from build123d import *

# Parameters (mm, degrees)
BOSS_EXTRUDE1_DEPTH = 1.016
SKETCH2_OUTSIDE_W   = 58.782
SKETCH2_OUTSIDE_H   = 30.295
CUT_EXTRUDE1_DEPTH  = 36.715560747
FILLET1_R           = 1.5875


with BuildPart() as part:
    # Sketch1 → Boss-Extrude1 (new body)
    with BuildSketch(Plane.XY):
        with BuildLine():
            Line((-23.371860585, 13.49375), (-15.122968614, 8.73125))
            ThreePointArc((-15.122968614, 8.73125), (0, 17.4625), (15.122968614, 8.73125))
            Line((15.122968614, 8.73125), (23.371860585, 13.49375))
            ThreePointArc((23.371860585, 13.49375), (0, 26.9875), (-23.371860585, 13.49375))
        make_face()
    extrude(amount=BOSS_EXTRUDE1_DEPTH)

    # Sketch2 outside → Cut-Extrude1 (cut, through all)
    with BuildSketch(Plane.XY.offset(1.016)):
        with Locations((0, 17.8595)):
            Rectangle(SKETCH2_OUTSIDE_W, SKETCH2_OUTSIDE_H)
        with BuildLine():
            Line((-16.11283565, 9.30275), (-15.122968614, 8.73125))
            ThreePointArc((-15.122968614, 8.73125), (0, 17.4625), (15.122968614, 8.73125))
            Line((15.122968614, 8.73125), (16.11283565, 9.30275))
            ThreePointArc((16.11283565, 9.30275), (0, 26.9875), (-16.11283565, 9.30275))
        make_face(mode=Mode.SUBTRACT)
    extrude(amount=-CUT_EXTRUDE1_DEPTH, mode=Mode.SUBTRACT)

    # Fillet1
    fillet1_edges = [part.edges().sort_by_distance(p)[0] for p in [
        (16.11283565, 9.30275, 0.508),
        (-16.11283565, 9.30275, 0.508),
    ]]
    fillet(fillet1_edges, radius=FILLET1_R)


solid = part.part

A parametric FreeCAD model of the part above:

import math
import FreeCAD as App
import Part
import Sketcher

V = App.Vector
Q = App.Units.Quantity


def edges_at(feature, points):
    """Names of the edges that pass closest to the given points."""
    edges = feature.Shape.Edges
    near = lambda p: min(range(len(edges)), key=lambda i: edges[i].distToShape(Part.Vertex(*p))[0])
    return sorted({f"Edge{near(p) + 1}" for p in points})

doc = App.newDocument("Part")
params = doc.addObject("Spreadsheet::Sheet", "Params")
for row, (alias, value) in enumerate([
    ("sketch1_radius", "0.6875 in"),
    ("sketch1_radius2", "1.0625 in"),
    ("pad1_length", "0.04 in"),
    ("sketch2_radius", "0.6875 in"),
    ("sketch2_length", "0.045 in"),
    ("fillet_radius", "0.0625 in"),
], start=1):
    params.set(f"A{row}", alias)
    params.set(f"B{row}", "=" + value)
    params.setAlias(f"B{row}", alias)

body = doc.addObject("PartDesign::Body", "Body")

sketch1 = doc.addObject("Sketcher::SketchObject", "Sketch")
body.addObject(sketch1)
sketch1.AttachmentSupport = (doc.XY_Plane, [""])
sketch1.MapMode = "FlatFace"
sketch1.addGeometry([
    Part.LineSegment(V(-23, 13, 0), V(-15, 9, 0)),
    Part.ArcOfCircle(Part.Circle(V(0, 0, 0), V(0, 0, 1), 17), math.radians(30), math.radians(150)),
    Part.LineSegment(V(15, 9, 0), V(23, 13, 0)),
    Part.ArcOfCircle(Part.Circle(V(0, 0, 0), V(0, 0, 1), 27), math.radians(30), math.radians(150)),
], False)
sketch1.addConstraint([
    Sketcher.Constraint("Coincident", 0, 2, 1, 2),
    Sketcher.Constraint("Coincident", 1, 1, 2, 1),
    Sketcher.Constraint("Coincident", 2, 2, 3, 1),
    Sketcher.Constraint("Coincident", 3, 2, 0, 1),
    Sketcher.Constraint("Coincident", 1, 3, -1, 1),
    Sketcher.Constraint("Coincident", 3, 3, -1, 1),
    Sketcher.Constraint("Horizontal", 0, 2, 1, 1),
    Sketcher.Constraint("Horizontal", 2, 2, 3, 2),
    Sketcher.Constraint("Angle", 0, Q("-30 deg")),
    Sketcher.Constraint("Radius", 1, Q("0.6875 in")),
    Sketcher.Constraint("Radius", 3, Q("1.0625 in")),
    Sketcher.Constraint("DistanceY", -1, 1, 0, 2, Q("0.34375 in")),
])
sketch1.setExpression("Constraints[9]", "Params.sketch1_radius")
sketch1.setExpression("Constraints[10]", "Params.sketch1_radius2")
pad1 = doc.addObject("PartDesign::Pad", "Pad")
body.addObject(pad1)
pad1.Profile = sketch1
pad1.setExpression("Length", "Params.pad1_length")

sketch2 = doc.addObject("Sketcher::SketchObject", "Sketch001")
body.addObject(sketch2)
sketch2.AttachmentSupport = (doc.XY_Plane, [""])
sketch2.MapMode = "FlatFace"
sketch2.AttachmentOffset = App.Placement(V(0, 0, 0.04 * 25.4), App.Rotation())
sketch2.addGeometry([
    Part.LineSegment(V(-29.4, 33, 0), V(-29.4, 2.7, 0)),
    Part.LineSegment(V(-29.4, 2.7, 0), V(29.4, 2.7, 0)),
    Part.LineSegment(V(29.4, 2.7, 0), V(29.4, 33, 0)),
    Part.LineSegment(V(29.4, 33, 0), V(-29.4, 33, 0)),
    Part.LineSegment(V(-15.1, 8.7, 0), V(-16.1, 9.3, 0)),
    Part.ArcOfCircle(Part.Circle(V(0, 10.8, 0), V(0, 0, 1), 16.2), math.radians(-5), math.radians(185)),
    Part.LineSegment(V(16.1, 9.3, 0), V(15.1, 8.7, 0)),
    Part.ArcOfCircle(Part.Circle(V(0, 0, 0), V(0, 0, 1), 17.5), math.radians(30), math.radians(150)),
], False)
sketch2.addConstraint([
    Sketcher.Constraint("Coincident", 0, 2, 1, 1),
    Sketcher.Constraint("Coincident", 1, 2, 2, 1),
    Sketcher.Constraint("Coincident", 2, 2, 3, 1),
    Sketcher.Constraint("Coincident", 3, 2, 0, 1),
    Sketcher.Constraint("Coincident", 4, 2, 5, 2),
    Sketcher.Constraint("Coincident", 5, 1, 6, 1),
    Sketcher.Constraint("Coincident", 6, 2, 7, 1),
    Sketcher.Constraint("Coincident", 7, 2, 4, 1),
    Sketcher.Constraint("Vertical", 0),
    Sketcher.Constraint("Horizontal", 1),
    Sketcher.Constraint("Vertical", 2),
    Sketcher.Constraint("Horizontal", 3),
    Sketcher.Constraint("Coincident", 7, 3, -1, 1),
    Sketcher.Constraint("Symmetric", 4, 2, 5, 1, -2),
    Sketcher.Constraint("Horizontal", 6, 2, 7, 2),
    Sketcher.Constraint("Angle", 4, Q("150 deg")),
    Sketcher.Constraint("Radius", 7, Q("0.6875 in")),
    Sketcher.Constraint("Distance", 4, Q("0.045 in")),
    Sketcher.Constraint("DistanceY", -1, 1, 6, 2, Q("0.34375 in")),
    Sketcher.Constraint("DistanceX", 1, 1, 1, 2, 58.782),
    Sketcher.Constraint("DistanceY", 0, 2, 0, 1, 30.295),
    Sketcher.Constraint("Radius", 5, 16.182696),
    Sketcher.Constraint("DistanceX", 0, 2, -1, 1, 29.391),
    Sketcher.Constraint("DistanceY", -1, 1, 0, 2, 2.712),
])
sketch2.setExpression("Constraints[16]", "Params.sketch2_radius")
sketch2.setExpression("Constraints[17]", "Params.sketch2_length")
pocket1 = doc.addObject("PartDesign::Pocket", "Pocket")
body.addObject(pocket1)
pocket1.Profile = sketch2
pocket1.Type = "ThroughAll"
doc.recompute()

fillet = doc.addObject("PartDesign::Fillet", "Fillet")
body.addObject(fillet)
fillet.Base = (pocket1, edges_at(pocket1, [(16.113, 9.303, 0.508), (-16.113, 9.303, 0.508)]))
fillet.setExpression("Radius", "Params.fillet_radius")

doc.recompute()
